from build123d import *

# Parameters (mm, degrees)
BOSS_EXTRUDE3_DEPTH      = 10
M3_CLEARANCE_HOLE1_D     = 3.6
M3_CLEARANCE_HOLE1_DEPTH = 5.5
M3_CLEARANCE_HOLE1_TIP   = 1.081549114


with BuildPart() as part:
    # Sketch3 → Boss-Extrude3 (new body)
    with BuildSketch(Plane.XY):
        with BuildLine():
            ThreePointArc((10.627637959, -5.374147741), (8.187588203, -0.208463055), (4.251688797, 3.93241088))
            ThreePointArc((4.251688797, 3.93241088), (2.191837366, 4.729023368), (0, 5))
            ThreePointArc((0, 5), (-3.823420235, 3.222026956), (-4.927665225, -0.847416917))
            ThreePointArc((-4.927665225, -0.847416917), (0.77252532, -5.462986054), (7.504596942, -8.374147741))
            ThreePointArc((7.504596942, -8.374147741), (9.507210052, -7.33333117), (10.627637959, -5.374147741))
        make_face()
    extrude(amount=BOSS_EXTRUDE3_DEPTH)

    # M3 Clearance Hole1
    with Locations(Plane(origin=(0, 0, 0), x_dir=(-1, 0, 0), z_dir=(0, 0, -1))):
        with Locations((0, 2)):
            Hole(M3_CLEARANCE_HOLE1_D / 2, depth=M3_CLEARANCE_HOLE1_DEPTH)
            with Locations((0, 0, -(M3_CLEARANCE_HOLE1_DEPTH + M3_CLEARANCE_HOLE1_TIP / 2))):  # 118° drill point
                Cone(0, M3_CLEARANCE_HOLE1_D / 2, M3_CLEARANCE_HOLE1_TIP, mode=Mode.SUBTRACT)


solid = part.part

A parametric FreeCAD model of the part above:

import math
import FreeCAD as App
import Part
import Sketcher

doc = App.newDocument("Part")
params = doc.addObject("Spreadsheet::Sheet", "Params")
for row, (alias, value) in enumerate([
    ("sketch1_radius", "18 mm"),
    ("sketch1_radius2", "9 mm"),
    ("sketch1_radius3", "5 mm"),
    ("sketch1_radius4", "27 mm"),
    ("sketch1_radius5", "4 mm"),
    ("pad1_length", "10 mm"),
    ("sketch2_diameter", "3.6 mm"),
    ("hole_diameter", "3.6 mm"),
    ("hole_depth", "5.5 mm"),
], start=1):
    params.set(f"A{row}", alias)
    params.set(f"B{row}", "=" + value)
    params.setAlias(f"B{row}", alias)

body = doc.addObject("PartDesign::Body", "Body")

# Sketch on XY plane
sketch1 = body.newObject("Sketcher::SketchObject", "Sketch")
sketch1.AttachmentSupport = (doc.getObject("XY_Plane"), [""])
sketch1.MapMode = "FlatFace"
sketch1.addGeometry([
    Part.ArcOfCircle(Part.Circle(App.Vector(-6.661765, -10.381796, 0), App.Vector(0, 0, 1), 18), math.radians(16.152965), math.radians(52.677337)),  # 0
    Part.ArcOfCircle(Part.Circle(App.Vector(0, -4, 0), App.Vector(0, 0, 1), 9), math.radians(61.80916), math.radians(90)),  # 1
    Part.ArcOfCircle(Part.Circle(App.Vector(0, 0, 0), App.Vector(0, 0, 1), 5), math.radians(90), math.radians(189.757783)),  # 2
    Part.ArcOfCircle(Part.Circle(App.Vector(14.755836, 17.633919, 0), App.Vector(0, 0, 1), 27), math.radians(-136.80418), math.radians(-105.578859)),  # 3
    Part.ArcOfCircle(Part.Circle(App.Vector(6.736179, -4.44865, 0), App.Vector(0, 0, 1), 4), math.radians(-78.924373), math.radians(-13.378006)),  # 4
], False)
sketch1.addConstraint([
    Sketcher.Constraint("Coincident", 0, 2, 1, 1),
    Sketcher.Constraint("Tangent", 1, 2, 2, 1),
    Sketcher.Constraint("Coincident", 2, 2, 3, 1),
    Sketcher.Constraint("Coincident", 3, 2, 4, 1),
    Sketcher.Constraint("Coincident", 4, 2, 0, 1),
    Sketcher.Constraint("Coincident", 2, 3, -1, 1),
    Sketcher.Constraint("PointOnObject", 1, 3, -2),
    Sketcher.Constraint("Radius", 0, 18.0),
    Sketcher.Constraint("Radius", 1, 9.0),
    Sketcher.Constraint("Radius", 2, 5.0),
    Sketcher.Constraint("Radius", 3, 27.0),
    Sketcher.Constraint("Radius", 4, 4.0),
    Sketcher.Constraint("DistanceY", 3, 2, 4, 2, 3.0),
    Sketcher.Constraint("DistanceX", 0, 3, 3, 3, 21.417601),
    Sketcher.Constraint("DistanceX", 0, 3, 2, 2, 1.7341),
    Sketcher.Constraint("DistanceY", -1, 1, 3, 3, 17.633919),
    Sketcher.Constraint("DistanceX", -1, 1, 4, 3, 6.736179),
    Sketcher.Constraint("DistanceY", 4, 3, -1, 1, 4.44865),
])
sketch1.setExpression("Constraints[7]", "Params.sketch1_radius")
sketch1.setExpression("Constraints[8]", "Params.sketch1_radius2")
sketch1.setExpression("Constraints[9]", "Params.sketch1_radius3")
sketch1.setExpression("Constraints[10]", "Params.sketch1_radius4")
sketch1.setExpression("Constraints[11]", "Params.sketch1_radius5")
pad1 = body.newObject("PartDesign::Pad", "Pad")
pad1.Profile = sketch1
pad1.setExpression("Length", "Params.pad1_length")

# Sketch on XY plane
sketch2 = body.newObject("Sketcher::SketchObject", "Sketch001")
sketch2.AttachmentSupport = (doc.getObject("XY_Plane"), [""])
sketch2.MapMode = "FlatFace"
sketch2.addGeometry(Part.Circle(App.Vector(0, 2, 0), App.Vector(0, 0, 1), 1.8), False)
sketch2.addConstraint([
    Sketcher.Constraint("PointOnObject", 0, 3, -2),
    Sketcher.Constraint("Diameter", 0, 3.6),
    Sketcher.Constraint("DistanceY", -1, 1, 0, 3, 2.0),
])
sketch2.setExpression("Constraints[1]", "Params.sketch2_diameter")
doc.recompute()
hole = body.newObject("PartDesign::Hole", "Hole")
hole.Profile = sketch2
hole.ThreadType = "None"
hole.setExpression("Diameter", "Params.hole_diameter")
hole.DepthType = "Dimension"
hole.setExpression("Depth", "Params.hole_depth")
hole.DrillPoint = "Angled"
hole.DrillPointAngle = 118
hole.Reversed = True

doc.recompute()
